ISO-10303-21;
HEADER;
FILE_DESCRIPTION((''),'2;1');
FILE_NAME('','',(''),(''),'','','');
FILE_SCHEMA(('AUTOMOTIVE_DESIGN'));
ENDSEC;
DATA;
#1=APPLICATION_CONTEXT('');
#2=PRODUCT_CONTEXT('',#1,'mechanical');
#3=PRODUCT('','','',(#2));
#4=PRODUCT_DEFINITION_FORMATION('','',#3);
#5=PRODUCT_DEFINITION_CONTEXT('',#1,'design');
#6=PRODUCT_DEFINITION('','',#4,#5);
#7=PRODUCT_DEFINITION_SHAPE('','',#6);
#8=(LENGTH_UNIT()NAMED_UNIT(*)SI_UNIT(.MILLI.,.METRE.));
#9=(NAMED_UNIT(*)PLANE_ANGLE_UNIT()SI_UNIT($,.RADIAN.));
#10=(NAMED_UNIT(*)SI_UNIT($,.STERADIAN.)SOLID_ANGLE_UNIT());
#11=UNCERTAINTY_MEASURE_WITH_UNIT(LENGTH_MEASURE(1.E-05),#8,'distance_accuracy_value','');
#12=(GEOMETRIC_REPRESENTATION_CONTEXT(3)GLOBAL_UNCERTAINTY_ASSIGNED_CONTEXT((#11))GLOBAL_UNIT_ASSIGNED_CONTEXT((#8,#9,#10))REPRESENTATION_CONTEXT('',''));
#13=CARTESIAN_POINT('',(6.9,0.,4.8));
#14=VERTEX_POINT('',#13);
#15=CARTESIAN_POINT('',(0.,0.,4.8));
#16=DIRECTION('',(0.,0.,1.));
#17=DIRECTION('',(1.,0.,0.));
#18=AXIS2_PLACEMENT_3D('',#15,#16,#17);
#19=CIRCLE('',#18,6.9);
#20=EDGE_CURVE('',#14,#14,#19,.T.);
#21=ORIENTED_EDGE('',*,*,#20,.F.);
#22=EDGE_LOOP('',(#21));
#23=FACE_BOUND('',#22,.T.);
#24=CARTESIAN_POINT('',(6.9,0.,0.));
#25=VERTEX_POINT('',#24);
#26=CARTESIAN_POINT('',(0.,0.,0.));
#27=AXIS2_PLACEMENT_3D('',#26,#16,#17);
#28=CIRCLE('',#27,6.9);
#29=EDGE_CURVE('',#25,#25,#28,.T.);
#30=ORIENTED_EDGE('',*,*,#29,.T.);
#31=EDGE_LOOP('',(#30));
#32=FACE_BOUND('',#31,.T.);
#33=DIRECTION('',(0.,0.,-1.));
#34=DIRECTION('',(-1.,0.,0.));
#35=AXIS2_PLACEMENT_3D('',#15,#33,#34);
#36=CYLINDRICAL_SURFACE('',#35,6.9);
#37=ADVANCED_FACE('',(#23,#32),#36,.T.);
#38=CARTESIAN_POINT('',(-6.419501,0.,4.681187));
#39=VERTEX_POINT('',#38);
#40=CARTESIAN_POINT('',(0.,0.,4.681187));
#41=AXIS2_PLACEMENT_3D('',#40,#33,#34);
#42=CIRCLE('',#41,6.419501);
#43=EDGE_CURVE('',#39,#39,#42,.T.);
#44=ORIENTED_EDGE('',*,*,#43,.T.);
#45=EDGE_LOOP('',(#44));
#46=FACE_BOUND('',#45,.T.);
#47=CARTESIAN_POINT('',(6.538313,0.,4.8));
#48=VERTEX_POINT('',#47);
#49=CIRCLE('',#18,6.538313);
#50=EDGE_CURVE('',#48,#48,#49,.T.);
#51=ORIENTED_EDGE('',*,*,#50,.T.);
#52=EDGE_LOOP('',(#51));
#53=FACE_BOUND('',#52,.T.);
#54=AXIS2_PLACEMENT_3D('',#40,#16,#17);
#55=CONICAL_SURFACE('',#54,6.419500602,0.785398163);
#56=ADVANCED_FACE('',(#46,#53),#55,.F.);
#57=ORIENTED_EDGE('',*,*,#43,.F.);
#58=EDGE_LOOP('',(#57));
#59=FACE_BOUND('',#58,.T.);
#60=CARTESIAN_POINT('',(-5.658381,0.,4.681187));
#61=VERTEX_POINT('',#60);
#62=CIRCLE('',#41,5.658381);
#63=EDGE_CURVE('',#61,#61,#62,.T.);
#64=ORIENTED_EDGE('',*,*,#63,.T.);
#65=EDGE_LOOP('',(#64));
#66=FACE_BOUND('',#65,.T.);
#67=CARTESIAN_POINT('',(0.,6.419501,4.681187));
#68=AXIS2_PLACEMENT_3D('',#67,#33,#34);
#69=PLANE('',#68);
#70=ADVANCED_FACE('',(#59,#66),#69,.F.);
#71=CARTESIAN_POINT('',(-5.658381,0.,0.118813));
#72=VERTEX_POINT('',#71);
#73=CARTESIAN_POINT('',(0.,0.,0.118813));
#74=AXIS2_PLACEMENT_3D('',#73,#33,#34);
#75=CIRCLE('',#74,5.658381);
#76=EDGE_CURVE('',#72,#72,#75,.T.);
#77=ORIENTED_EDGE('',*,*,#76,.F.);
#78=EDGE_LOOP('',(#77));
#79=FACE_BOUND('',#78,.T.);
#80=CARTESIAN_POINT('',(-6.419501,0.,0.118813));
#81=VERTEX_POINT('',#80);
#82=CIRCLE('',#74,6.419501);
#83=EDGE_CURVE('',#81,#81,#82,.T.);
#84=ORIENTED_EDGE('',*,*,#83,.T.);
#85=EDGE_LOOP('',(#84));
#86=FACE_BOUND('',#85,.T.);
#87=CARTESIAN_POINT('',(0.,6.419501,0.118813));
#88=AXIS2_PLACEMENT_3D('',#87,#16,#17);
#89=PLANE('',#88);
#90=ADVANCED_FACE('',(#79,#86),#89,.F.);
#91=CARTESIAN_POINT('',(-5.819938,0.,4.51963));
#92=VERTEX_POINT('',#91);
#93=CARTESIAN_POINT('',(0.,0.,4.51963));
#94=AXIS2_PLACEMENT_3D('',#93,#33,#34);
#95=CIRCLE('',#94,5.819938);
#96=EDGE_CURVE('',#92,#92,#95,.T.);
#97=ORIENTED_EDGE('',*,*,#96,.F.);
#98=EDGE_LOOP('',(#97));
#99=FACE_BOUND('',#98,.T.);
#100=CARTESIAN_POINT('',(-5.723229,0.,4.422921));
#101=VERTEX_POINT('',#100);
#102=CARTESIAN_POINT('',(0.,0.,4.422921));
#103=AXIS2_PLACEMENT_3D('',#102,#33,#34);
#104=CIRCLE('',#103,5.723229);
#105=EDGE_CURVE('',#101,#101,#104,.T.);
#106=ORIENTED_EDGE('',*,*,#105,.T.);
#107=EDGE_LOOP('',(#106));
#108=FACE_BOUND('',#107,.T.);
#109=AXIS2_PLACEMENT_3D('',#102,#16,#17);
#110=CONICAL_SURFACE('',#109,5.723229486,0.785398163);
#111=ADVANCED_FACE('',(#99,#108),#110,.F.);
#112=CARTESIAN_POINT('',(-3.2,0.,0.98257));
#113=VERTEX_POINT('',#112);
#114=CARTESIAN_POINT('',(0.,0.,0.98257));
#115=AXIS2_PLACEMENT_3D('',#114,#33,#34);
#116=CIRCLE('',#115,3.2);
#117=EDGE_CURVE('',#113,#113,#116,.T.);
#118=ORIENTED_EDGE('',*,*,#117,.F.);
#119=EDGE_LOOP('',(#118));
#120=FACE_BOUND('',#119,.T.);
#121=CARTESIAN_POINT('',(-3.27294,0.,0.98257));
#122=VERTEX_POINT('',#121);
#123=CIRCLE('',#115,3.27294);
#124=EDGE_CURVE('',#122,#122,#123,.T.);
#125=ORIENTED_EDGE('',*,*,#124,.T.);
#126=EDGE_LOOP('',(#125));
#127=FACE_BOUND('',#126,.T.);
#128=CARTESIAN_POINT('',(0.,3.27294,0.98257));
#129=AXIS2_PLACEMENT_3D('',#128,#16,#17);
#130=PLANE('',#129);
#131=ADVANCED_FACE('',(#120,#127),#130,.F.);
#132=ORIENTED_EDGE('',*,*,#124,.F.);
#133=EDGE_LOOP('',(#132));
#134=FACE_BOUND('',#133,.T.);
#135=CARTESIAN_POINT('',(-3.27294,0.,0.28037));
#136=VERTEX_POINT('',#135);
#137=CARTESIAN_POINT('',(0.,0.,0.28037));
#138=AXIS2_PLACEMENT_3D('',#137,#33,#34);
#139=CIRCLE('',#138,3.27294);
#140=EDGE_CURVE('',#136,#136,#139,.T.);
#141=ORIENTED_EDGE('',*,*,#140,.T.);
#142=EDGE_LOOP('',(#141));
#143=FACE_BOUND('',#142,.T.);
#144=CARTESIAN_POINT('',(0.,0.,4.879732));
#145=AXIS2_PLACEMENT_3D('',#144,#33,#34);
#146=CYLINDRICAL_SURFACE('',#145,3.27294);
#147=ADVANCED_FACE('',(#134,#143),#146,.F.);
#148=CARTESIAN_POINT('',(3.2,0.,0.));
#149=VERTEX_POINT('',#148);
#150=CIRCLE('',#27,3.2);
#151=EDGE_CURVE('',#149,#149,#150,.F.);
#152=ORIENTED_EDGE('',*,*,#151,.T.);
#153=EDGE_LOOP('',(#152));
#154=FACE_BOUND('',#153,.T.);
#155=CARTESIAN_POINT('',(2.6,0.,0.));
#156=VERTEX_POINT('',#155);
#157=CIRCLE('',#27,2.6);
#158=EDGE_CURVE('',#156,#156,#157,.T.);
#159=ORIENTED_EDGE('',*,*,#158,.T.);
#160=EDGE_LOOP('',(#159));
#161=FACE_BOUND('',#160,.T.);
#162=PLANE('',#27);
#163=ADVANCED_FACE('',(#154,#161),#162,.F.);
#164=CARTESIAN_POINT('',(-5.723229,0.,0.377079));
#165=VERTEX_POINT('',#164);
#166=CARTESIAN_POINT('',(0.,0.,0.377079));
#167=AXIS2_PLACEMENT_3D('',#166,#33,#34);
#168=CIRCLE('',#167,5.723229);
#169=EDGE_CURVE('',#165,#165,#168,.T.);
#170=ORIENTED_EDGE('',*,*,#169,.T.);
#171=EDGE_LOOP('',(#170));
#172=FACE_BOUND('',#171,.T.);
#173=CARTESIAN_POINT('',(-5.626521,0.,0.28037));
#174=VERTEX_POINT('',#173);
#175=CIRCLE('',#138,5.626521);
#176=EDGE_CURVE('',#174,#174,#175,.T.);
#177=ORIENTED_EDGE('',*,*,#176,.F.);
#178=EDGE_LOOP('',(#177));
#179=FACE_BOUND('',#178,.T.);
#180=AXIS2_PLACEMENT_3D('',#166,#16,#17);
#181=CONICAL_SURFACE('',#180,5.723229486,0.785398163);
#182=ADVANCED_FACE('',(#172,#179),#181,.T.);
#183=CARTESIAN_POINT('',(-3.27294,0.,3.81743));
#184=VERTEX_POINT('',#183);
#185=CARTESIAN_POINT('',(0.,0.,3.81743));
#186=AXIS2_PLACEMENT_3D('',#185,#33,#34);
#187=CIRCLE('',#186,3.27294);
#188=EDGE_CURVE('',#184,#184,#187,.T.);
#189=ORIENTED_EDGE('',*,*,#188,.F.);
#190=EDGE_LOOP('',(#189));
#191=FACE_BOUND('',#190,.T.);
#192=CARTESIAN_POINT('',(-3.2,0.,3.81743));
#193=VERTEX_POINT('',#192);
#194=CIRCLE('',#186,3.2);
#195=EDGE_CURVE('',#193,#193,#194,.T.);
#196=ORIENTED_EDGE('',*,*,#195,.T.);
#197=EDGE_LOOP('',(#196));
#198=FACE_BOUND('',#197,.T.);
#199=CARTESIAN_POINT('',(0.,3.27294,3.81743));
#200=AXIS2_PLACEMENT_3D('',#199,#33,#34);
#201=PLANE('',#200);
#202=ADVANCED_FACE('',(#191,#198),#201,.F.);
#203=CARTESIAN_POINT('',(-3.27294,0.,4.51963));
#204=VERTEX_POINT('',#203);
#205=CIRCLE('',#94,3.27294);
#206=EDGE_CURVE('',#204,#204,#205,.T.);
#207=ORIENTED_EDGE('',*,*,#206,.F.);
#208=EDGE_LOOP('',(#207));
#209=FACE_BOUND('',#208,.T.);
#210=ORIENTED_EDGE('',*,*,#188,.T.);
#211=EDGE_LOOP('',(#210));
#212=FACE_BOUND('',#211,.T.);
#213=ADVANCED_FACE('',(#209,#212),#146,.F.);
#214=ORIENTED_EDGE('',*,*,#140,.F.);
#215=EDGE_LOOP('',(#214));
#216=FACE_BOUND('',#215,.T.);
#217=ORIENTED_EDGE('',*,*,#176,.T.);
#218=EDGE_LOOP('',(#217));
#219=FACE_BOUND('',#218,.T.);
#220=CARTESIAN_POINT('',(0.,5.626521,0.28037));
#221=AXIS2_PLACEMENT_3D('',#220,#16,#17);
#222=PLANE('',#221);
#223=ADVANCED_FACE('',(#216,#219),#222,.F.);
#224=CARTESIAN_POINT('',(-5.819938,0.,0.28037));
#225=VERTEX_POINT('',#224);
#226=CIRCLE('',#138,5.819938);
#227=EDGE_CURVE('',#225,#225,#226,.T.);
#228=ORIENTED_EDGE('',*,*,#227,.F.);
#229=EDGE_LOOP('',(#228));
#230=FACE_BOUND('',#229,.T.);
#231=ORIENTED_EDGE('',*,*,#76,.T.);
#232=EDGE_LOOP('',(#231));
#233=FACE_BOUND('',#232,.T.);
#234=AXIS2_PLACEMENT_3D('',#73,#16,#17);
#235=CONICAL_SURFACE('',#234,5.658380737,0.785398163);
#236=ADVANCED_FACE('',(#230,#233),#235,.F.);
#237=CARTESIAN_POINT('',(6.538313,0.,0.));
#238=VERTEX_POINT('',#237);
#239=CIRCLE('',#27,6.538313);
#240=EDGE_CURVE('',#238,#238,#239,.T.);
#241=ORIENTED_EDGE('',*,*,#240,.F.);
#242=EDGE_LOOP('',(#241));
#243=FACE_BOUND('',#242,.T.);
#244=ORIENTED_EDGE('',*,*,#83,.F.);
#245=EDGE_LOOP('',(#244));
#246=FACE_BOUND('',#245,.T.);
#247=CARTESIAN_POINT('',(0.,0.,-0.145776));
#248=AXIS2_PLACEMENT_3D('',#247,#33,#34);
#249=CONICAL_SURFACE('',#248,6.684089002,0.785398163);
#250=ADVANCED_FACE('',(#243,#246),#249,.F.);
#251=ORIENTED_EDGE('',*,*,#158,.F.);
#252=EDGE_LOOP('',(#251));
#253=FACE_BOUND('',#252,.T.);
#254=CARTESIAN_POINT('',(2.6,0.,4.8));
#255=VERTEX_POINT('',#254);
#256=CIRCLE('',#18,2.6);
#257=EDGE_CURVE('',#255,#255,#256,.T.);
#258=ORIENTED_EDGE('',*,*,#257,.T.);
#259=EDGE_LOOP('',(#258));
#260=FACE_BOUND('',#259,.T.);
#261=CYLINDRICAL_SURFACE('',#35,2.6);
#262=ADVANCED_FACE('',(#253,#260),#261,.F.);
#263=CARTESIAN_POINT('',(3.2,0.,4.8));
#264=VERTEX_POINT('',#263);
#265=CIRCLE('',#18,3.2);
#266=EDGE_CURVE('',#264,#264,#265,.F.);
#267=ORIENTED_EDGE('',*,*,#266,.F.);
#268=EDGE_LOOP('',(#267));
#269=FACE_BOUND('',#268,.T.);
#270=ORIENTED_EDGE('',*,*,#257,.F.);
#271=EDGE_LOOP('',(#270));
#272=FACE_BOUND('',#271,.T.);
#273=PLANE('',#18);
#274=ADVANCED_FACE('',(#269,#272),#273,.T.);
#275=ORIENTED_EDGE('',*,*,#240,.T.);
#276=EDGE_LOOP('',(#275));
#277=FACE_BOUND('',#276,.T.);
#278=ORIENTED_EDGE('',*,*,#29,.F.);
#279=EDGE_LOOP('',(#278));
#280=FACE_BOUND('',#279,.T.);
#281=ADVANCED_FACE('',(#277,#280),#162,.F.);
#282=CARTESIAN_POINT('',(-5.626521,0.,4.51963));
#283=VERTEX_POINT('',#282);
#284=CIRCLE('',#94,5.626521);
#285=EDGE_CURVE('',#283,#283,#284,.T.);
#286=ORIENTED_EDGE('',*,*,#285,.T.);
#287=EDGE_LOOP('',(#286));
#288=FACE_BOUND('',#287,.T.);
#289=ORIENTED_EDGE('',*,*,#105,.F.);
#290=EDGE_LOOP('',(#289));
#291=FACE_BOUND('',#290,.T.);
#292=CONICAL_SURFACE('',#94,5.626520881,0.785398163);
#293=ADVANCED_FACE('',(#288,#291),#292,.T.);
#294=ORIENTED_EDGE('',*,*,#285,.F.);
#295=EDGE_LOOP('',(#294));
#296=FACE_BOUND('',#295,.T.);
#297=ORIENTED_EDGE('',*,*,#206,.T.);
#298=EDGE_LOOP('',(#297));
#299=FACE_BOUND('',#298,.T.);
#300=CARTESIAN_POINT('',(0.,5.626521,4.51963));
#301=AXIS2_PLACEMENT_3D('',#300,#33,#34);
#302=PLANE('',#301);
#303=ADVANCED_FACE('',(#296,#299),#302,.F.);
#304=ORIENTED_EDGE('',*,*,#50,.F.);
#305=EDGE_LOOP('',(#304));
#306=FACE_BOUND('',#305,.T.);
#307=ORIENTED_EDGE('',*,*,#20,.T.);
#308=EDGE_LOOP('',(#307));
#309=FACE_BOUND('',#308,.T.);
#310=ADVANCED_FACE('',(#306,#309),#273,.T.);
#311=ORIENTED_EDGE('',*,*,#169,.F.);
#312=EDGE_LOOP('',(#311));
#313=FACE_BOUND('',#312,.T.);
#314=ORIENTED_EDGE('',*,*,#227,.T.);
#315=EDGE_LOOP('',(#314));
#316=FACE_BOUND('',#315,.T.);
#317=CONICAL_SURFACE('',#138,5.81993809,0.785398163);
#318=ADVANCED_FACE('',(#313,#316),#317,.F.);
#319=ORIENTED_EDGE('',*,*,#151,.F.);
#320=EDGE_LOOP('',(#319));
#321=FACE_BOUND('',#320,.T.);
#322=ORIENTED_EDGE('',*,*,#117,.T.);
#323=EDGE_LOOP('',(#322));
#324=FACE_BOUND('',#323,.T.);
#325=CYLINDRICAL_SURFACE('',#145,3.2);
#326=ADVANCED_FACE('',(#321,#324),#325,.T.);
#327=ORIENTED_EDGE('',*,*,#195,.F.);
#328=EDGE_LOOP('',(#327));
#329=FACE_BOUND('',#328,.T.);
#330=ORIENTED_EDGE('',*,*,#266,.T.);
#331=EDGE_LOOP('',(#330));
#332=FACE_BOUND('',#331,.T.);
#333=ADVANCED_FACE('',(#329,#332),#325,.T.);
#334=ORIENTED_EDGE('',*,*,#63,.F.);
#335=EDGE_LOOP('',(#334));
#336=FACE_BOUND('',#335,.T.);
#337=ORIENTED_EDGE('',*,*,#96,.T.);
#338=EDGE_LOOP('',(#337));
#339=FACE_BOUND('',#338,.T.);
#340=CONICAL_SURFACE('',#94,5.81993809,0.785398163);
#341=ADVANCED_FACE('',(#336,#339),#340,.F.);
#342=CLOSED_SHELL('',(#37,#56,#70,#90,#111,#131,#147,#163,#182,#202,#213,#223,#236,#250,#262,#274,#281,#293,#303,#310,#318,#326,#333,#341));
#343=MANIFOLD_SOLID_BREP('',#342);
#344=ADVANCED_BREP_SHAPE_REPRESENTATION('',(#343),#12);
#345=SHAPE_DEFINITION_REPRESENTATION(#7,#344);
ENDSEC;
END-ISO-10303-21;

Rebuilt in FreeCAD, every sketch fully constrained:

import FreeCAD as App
import Part
import Sketcher
from FreeCAD import Vector
Q = App.Units.Quantity

doc = App.newDocument("Part")
body = doc.addObject("PartDesign::Body", "Body")

# Sketch on XY plane
sketch1 = doc.addObject("Sketcher::SketchObject", "Sketch")
body.addObject(sketch1)
sketch1.AttachmentSupport = (doc.XY_Plane, [""])
sketch1.MapMode = "FlatFace"
sketch1.addGeometry([
    Part.Circle(Vector(0, 0, 0), Vector(0, 0, 1), 6.9),
    Part.Circle(Vector(0, 0, 0), Vector(0, 0, 1), 2.6),
], False)
sketch1.addConstraint([
    Sketcher.Constraint("Coincident", 0, 3, -1, 1),
    Sketcher.Constraint("Coincident", 1, 3, -1, 1),
    Sketcher.Constraint("Diameter", 0, Q("13.8 mm")),
    Sketcher.Constraint("Diameter", 1, Q("5.2 mm")),
])
pad1 = doc.addObject("PartDesign::Pad", "Pad")
body.addObject(pad1)
pad1.Profile = sketch1
pad1.Length = 4.8

# Sketch on YZ plane
sketch2 = doc.addObject("Sketcher::SketchObject", "Sketch001")
body.addObject(sketch2)
sketch2.AttachmentSupport = (doc.YZ_Plane, [""])
sketch2.MapMode = "FlatFace"
sketch2.addGeometry([
    Part.LineSegment(Vector(6.3, 4.95, 0), Vector(6.3, 5.87, 0)),  # 0
    Part.LineSegment(Vector(6.3, 5.87, 0), Vector(0, 5.87, 0)),  # 1
    Part.LineSegment(Vector(0, 5.87, 0), Vector(0, 4.88, 0)),  # 2
    Part.LineSegment(Vector(0, 4.88, 0), Vector(3.2, 4.88, 0)),  # 3
    Part.LineSegment(Vector(3.2, 4.88, 0), Vector(3.2, 3.82, 0)),  # 4
    Part.LineSegment(Vector(3.2, 3.82, 0), Vector(3.27, 3.82, 0)),  # 5
    Part.LineSegment(Vector(3.27, 3.82, 0), Vector(3.27, 4.52, 0)),  # 6
    Part.LineSegment(Vector(3.27, 4.52, 0), Vector(5.63, 4.52, 0)),  # 7
    Part.LineSegment(Vector(5.63, 4.52, 0), Vector(5.72, 4.42, 0)),  # 8
    Part.LineSegment(Vector(5.72, 4.42, 0), Vector(5.82, 4.52, 0)),  # 9
    Part.LineSegment(Vector(5.82, 4.52, 0), Vector(5.66, 4.68, 0)),  # 10
    Part.LineSegment(Vector(5.66, 4.68, 0), Vector(6.42, 4.68, 0)),  # 11
    Part.LineSegment(Vector(6.42, 4.68, 0), Vector(6.68, 4.95, 0)),  # 12
    Part.LineSegment(Vector(6.68, 4.95, 0), Vector(6.3, 4.95, 0)),  # 13
    Part.LineSegment(Vector(6.3, -1.07, 0), Vector(6.3, -0.15, 0)),  # 14
    Part.LineSegment(Vector(6.3, -0.15, 0), Vector(6.68, -0.15, 0)),  # 15
    Part.LineSegment(Vector(6.68, -0.15, 0), Vector(6.42, 0.12, 0)),  # 16
    Part.LineSegment(Vector(6.42, 0.12, 0), Vector(5.66, 0.12, 0)),  # 17
    Part.LineSegment(Vector(5.66, 0.12, 0), Vector(5.82, 0.28, 0)),  # 18
    Part.LineSegment(Vector(5.82, 0.28, 0), Vector(5.72, 0.38, 0)),  # 19
    Part.LineSegment(Vector(5.72, 0.38, 0), Vector(5.63, 0.28, 0)),  # 20
    Part.LineSegment(Vector(5.63, 0.28, 0), Vector(3.27, 0.28, 0)),  # 21
    Part.LineSegment(Vector(3.27, 0.28, 0), Vector(3.27, 0.98, 0)),  # 22
    Part.LineSegment(Vector(3.27, 0.98, 0), Vector(3.2, 0.98, 0)),  # 23
    Part.LineSegment(Vector(3.2, 0.98, 0), Vector(3.2, -0.08, 0)),  # 24
    Part.LineSegment(Vector(3.2, -0.08, 0), Vector(0, -0.08, 0)),  # 25
    Part.LineSegment(Vector(0, -0.08, 0), Vector(0, -1.07, 0)),  # 26
    Part.LineSegment(Vector(0, -1.07, 0), Vector(6.3, -1.07, 0)),  # 27
], False)
sketch2.addConstraint([
    Sketcher.Constraint("Coincident", 0, 2, 1, 1),
    Sketcher.Constraint("Coincident", 1, 2, 2, 1),
    Sketcher.Constraint("Coincident", 2, 2, 3, 1),
    Sketcher.Constraint("Coincident", 3, 2, 4, 1),
    Sketcher.Constraint("Coincident", 4, 2, 5, 1),
    Sketcher.Constraint("Coincident", 5, 2, 6, 1),
    Sketcher.Constraint("Coincident", 6, 2, 7, 1),
    Sketcher.Constraint("Coincident", 7, 2, 8, 1),
    Sketcher.Constraint("Coincident", 8, 2, 9, 1),
    Sketcher.Constraint("Coincident", 9, 2, 10, 1),
    Sketcher.Constraint("Coincident", 10, 2, 11, 1),
    Sketcher.Constraint("Coincident", 11, 2, 12, 1),
    Sketcher.Constraint("Coincident", 12, 2, 13, 1),
    Sketcher.Constraint("Coincident", 13, 2, 0, 1),
    Sketcher.Constraint("Coincident", 14, 2, 15, 1),
    Sketcher.Constraint("Coincident", 15, 2, 16, 1),
    Sketcher.Constraint("Coincident", 16, 2, 17, 1),
    Sketcher.Constraint("Coincident", 17, 2, 18, 1),
    Sketcher.Constraint("Coincident", 18, 2, 19, 1),
    Sketcher.Constraint("Coincident", 19, 2, 20, 1),
    Sketcher.Constraint("Coincident", 20, 2, 21, 1),
    Sketcher.Constraint("Coincident", 21, 2, 22, 1),
    Sketcher.Constraint("Coincident", 22, 2, 23, 1),
    Sketcher.Constraint("Coincident", 23, 2, 24, 1),
    Sketcher.Constraint("Coincident", 24, 2, 25, 1),
    Sketcher.Constraint("Coincident", 25, 2, 26, 1),
    Sketcher.Constraint("Coincident", 26, 2, 27, 1),
    Sketcher.Constraint("Coincident", 27, 2, 14, 1),
    Sketcher.Constraint("Vertical", 0),
    Sketcher.Constraint("Horizontal", 1),
    Sketcher.Constraint("Vertical", 2),
    Sketcher.Constraint("Horizontal", 3),
    Sketcher.Constraint("Vertical", 4),
    Sketcher.Constraint("Horizontal", 5),
    Sketcher.Constraint("Vertical", 6),
    Sketcher.Constraint("Horizontal", 7),
    Sketcher.Constraint("Horizontal", 11),
    Sketcher.Constraint("Horizontal", 13),
    Sketcher.Constraint("Vertical", 14),
    Sketcher.Constraint("Horizontal", 15),
    Sketcher.Constraint("Horizontal", 17),
    Sketcher.Constraint("Horizontal", 21),
    Sketcher.Constraint("Vertical", 22),
    Sketcher.Constraint("Horizontal", 23),
    Sketcher.Constraint("Vertical", 24),
    Sketcher.Constraint("Horizontal", 25),
    Sketcher.Constraint("Vertical", 26),
    Sketcher.Constraint("Horizontal", 27),
    Sketcher.Constraint("PointOnObject", 1, 2, -2),
    Sketcher.Constraint("PointOnObject", 25, 2, -2),
    Sketcher.Constraint("Perpendicular", 8, 9),
    Sketcher.Constraint("Perpendicular", 9, 10),
    Sketcher.Constraint("Perpendicular", 10, 12),
    Sketcher.Constraint("Perpendicular", 12, 16),
    Sketcher.Constraint("Perpendicular", 16, 18),
    Sketcher.Constraint("Perpendicular", 18, 19),
    Sketcher.Constraint("Perpendicular", 19, 20),
    Sketcher.Constraint("Horizontal", 7, 2, 9, 2),
    Sketcher.Constraint("Horizontal", 18, 2, 20, 2),
    Sketcher.Constraint("Vertical", 13, 2, 14, 2),
    Sketcher.Constraint("Vertical", 12, 2, 15, 2),
    Sketcher.Constraint("Vertical", 11, 2, 16, 2),
    Sketcher.Constraint("Vertical", 10, 2, 17, 2),
    Sketcher.Constraint("Vertical", 9, 2, 18, 2),
    Sketcher.Constraint("Vertical", 8, 2, 19, 2),
    Sketcher.Constraint("Vertical", 7, 2, 20, 2),
    Sketcher.Constraint("Vertical", 6, 2, 21, 2),
    Sketcher.Constraint("Vertical", 4, 2, 23, 2),
    Sketcher.Constraint("Equal", 0, 14),
    Sketcher.Constraint("Equal", 6, 22),
    Sketcher.Constraint("Equal", 4, 24),
    Sketcher.Constraint("DistanceX", 1, 2, 1, 1, Q("6.3 mm")),
    Sketcher.Constraint("DistanceX", 3, 1, 3, 2, Q("3.2 mm")),
    Sketcher.Constraint("DistanceY", 4, 2, 4, 1, Q("1.062302 mm")),
    Sketcher.Constraint("DistanceY", 6, 1, 6, 2, Q("0.7022 mm")),
    Sketcher.Constraint("DistanceX", 6, 2, 9, 2, Q("2.546998 mm")),
    Sketcher.Constraint("DistanceX", 5, 1, 5, 2, Q("0.07294 mm")),
    Sketcher.Constraint("DistanceX", 7, 1, 7, 2, Q("2.353581 mm")),
    Sketcher.Constraint("DistanceX", 11, 1, 11, 2, Q("0.76112 mm")),
    Sketcher.Constraint("DistanceX", 13, 2, 13, 1, Q("0.384089 mm")),
    Sketcher.Constraint("DistanceY", 2, 2, 2, 1, Q("0.989461 mm")),
    Sketcher.Constraint("DistanceX", -1, 1, 11, 2, Q("6.419501 mm")),
    Sketcher.Constraint("DistanceY", -1, 1, 4, 2, Q("3.81743 mm")),
    Sketcher.Constraint("DistanceY", -1, 1, 18, 2, Q("0.28037 mm")),
])
groove = doc.addObject("PartDesign::Groove", "Groove")
body.addObject(groove)
groove.Profile = sketch2
groove.ReferenceAxis = (sketch2, ["V_Axis"])
groove.Angle = 360

doc.recompute()
